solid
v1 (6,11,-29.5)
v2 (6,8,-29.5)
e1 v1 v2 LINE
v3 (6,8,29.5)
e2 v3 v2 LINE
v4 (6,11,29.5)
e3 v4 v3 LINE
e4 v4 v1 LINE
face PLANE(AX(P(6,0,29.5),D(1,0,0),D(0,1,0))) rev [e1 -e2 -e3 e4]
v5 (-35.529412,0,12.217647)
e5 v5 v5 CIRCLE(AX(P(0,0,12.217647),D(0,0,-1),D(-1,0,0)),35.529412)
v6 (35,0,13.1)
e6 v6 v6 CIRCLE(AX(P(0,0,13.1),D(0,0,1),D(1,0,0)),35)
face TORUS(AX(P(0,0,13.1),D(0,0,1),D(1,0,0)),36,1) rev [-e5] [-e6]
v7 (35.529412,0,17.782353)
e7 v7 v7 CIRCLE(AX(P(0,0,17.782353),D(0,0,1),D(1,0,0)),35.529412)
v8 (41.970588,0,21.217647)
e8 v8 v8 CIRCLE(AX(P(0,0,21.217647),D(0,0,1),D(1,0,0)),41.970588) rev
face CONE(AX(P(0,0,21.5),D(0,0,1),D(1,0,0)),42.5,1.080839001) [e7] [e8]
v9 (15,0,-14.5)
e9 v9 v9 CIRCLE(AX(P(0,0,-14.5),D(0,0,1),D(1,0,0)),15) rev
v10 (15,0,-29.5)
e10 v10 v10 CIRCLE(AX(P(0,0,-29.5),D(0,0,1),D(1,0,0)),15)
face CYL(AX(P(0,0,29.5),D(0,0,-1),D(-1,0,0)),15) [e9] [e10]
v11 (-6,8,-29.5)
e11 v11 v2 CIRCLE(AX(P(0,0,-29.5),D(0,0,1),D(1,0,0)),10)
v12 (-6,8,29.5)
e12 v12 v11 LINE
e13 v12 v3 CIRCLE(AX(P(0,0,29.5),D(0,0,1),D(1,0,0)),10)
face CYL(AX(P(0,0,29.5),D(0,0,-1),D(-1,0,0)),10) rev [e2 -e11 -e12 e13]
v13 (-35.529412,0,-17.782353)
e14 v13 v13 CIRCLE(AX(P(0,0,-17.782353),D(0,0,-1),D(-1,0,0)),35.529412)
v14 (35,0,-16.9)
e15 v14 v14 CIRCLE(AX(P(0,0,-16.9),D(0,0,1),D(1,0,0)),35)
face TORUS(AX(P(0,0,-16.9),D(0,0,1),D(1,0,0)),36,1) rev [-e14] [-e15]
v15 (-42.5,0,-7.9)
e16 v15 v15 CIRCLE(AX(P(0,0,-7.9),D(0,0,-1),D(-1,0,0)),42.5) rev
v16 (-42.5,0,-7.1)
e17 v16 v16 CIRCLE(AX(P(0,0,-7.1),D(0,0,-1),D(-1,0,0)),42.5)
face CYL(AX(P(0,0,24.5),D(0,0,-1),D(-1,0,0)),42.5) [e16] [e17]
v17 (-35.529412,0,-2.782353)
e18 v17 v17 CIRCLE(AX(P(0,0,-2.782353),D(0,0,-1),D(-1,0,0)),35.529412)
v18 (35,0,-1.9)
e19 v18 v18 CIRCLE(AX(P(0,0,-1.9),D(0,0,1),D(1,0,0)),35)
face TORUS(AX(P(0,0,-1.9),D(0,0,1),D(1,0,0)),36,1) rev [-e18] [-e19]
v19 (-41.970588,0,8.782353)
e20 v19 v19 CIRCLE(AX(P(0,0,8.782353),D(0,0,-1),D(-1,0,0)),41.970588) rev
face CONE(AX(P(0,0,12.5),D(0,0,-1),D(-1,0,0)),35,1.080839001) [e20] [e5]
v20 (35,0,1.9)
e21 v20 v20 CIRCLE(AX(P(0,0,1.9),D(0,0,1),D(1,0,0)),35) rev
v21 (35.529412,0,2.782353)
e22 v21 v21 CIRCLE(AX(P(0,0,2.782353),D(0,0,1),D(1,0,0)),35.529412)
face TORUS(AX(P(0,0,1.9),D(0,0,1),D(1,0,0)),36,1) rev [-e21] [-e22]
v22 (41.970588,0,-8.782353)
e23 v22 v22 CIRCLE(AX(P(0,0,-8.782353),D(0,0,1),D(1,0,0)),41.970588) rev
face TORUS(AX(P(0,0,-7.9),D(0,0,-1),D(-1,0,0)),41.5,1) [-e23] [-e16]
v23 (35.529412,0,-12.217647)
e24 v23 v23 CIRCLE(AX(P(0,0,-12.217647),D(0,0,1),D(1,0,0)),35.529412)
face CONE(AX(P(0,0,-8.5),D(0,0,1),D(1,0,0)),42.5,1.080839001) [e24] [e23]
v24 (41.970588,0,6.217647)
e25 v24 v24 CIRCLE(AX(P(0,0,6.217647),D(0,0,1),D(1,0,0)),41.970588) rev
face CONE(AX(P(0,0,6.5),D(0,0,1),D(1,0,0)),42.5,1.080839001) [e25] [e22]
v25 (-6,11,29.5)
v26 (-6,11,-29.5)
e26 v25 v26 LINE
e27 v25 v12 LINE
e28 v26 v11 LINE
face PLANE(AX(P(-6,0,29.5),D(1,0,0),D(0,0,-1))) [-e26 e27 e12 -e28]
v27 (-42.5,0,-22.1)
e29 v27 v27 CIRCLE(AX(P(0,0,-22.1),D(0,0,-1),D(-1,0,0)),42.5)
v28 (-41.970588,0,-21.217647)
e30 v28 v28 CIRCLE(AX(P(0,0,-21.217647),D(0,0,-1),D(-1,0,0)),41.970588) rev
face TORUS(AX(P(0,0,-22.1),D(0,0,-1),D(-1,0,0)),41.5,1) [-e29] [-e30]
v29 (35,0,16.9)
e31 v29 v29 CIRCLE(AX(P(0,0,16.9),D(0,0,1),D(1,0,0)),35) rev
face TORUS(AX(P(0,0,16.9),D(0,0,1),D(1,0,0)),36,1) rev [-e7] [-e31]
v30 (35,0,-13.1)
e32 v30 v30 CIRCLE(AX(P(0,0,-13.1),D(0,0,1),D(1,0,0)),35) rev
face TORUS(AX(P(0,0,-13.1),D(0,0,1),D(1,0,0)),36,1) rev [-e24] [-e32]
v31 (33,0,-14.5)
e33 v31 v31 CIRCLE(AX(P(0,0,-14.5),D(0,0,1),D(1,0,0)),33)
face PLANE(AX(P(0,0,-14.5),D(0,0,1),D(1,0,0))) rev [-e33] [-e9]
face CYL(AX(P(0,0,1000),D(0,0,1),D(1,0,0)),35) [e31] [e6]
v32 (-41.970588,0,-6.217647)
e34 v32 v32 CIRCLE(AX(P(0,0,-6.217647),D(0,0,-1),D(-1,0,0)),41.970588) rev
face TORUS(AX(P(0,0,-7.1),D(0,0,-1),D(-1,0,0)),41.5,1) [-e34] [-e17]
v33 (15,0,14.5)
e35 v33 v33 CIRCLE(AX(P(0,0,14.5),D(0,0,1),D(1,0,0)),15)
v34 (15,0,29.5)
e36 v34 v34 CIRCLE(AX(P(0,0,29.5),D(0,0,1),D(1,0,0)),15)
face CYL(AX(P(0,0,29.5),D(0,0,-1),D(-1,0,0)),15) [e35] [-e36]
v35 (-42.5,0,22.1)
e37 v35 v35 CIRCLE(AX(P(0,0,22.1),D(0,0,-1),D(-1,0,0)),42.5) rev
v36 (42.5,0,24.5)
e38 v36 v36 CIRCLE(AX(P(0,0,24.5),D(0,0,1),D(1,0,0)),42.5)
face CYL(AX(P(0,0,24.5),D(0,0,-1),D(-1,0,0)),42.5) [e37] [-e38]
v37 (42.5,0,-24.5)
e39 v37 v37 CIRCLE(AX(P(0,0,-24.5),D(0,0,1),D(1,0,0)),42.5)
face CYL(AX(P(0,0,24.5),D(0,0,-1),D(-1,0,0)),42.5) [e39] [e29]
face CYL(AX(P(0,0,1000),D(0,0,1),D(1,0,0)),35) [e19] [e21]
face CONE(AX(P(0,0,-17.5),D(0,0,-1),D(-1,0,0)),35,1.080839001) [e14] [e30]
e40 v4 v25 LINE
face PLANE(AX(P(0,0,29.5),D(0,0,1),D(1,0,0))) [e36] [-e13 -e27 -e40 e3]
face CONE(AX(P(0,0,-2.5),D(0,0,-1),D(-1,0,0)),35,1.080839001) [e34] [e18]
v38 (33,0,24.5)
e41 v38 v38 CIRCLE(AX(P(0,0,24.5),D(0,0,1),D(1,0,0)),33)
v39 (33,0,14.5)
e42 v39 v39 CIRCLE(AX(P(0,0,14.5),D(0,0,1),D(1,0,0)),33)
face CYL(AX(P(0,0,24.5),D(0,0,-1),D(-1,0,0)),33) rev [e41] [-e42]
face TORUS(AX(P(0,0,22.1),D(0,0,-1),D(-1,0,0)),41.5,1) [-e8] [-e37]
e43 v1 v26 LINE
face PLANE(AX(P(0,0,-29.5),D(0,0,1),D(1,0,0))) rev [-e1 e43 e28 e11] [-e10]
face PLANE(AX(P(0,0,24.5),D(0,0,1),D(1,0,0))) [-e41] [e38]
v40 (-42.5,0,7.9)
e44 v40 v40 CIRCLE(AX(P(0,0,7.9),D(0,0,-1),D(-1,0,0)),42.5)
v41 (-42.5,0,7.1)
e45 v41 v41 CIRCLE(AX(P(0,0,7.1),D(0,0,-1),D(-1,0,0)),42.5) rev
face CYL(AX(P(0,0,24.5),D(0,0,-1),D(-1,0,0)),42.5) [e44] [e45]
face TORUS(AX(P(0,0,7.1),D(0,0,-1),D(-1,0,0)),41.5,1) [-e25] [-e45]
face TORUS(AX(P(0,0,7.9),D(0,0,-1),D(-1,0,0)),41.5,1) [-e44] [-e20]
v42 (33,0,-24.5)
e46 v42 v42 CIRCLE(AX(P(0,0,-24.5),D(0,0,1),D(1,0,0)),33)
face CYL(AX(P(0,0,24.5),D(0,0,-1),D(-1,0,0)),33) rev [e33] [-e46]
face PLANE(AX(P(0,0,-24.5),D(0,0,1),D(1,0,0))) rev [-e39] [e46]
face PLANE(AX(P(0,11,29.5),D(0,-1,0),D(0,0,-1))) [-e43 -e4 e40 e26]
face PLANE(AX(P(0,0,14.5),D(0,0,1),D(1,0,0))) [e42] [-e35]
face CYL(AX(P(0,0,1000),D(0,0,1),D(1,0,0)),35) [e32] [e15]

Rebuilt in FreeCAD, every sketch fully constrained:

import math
import FreeCAD as App
import Part
import Sketcher
from FreeCAD import Vector
Q = App.Units.Quantity


def edges_at(feature, points):
    """Names of the edges that pass closest to the given points."""
    edges = feature.Shape.Edges
    near = lambda p: min(range(len(edges)), key=lambda i: edges[i].distToShape(Part.Vertex(*p))[0])
    return sorted({f"Edge{near(p) + 1}" for p in points})


def add_polygon(sketch, points):
    """Adds a closed chain of lines whose ends are joined by coincident constraints."""
    first, n = sketch.GeometryCount, len(points)
    for a, b in zip(points, points[1:] + points[:1]):
        sketch.addGeometry(Part.LineSegment(App.Vector(*a, 0), App.Vector(*b, 0)), False)
    for i in range(n):
        sketch.addConstraint(Sketcher.Constraint("Coincident", first + i, 2, first + (i + 1) % n, 1))

doc = App.newDocument("Part")
body = doc.addObject("PartDesign::Body", "Body")

sketch1 = body.newObject("Sketcher::SketchObject", "Sketch")
sketch1.AttachmentSupport = (doc.getObject("XY_Plane"), [""])
sketch1.MapMode = "FlatFace"
sketch1.addGeometry([
    Part.Circle(Vector(0, 0, 0), Vector(0, 0, 1), 42),
    Part.Circle(Vector(0, 0, 0), Vector(0, 0, 1), 33),
], False)
sketch1.addConstraint([
    Sketcher.Constraint("Coincident", 0, 3, -1, 1),
    Sketcher.Constraint("Coincident", 1, 3, -1, 1),
    Sketcher.Constraint("Diameter", 0, Q("85 mm")),
    Sketcher.Constraint("Diameter", 1, Q("66 mm")),
])
pad1 = body.newObject("PartDesign::Pad", "Pad")
pad1.Profile = sketch1
pad1.Length = 49
pad1.Midplane = True
body2 = doc.addObject("PartDesign::Body", "Body001")

sketch2 = body2.newObject("Sketcher::SketchObject", "Sketch001")
sketch2.AttachmentSupport = (doc.getObject("XY_Plane001"), [""])
sketch2.MapMode = "FlatFace"
sketch2.addGeometry([
    Part.Circle(Vector(0, 0, 0), Vector(0, 0, 1), 15),
    Part.LineSegment(Vector(-6, 11, 0), Vector(6, 11, 0)),
    Part.LineSegment(Vector(6, 11, 0), Vector(6, 8, 0)),
    Part.ArcOfCircle(Part.Circle(Vector(0, 0, 0), Vector(0, 0, 1), 10), math.radians(127), math.radians(413)),
    Part.LineSegment(Vector(-6, 8, 0), Vector(-6, 11, 0)),
], False)
sketch2.addConstraint([
    Sketcher.Constraint("Coincident", 1, 2, 2, 1),
    Sketcher.Constraint("Coincident", 2, 2, 3, 2),
    Sketcher.Constraint("Coincident", 3, 1, 4, 1),
    Sketcher.Constraint("Coincident", 4, 2, 1, 1),
    Sketcher.Constraint("Horizontal", 1),
    Sketcher.Constraint("Vertical", 2),
    Sketcher.Constraint("Vertical", 4),
    Sketcher.Constraint("Coincident", 0, 3, -1, 1),
    Sketcher.Constraint("Coincident", 3, 3, -1, 1),
    Sketcher.Constraint("Horizontal", 2, 2, 3, 1),
    Sketcher.Constraint("Diameter", 0, Q("30 mm")),
    Sketcher.Constraint("Radius", 3, Q("10 mm")),
    Sketcher.Constraint("DistanceX", 1, 1, 1, 2, Q("12 mm")),
    Sketcher.Constraint("DistanceY", 2, 2, 2, 1, Q("3 mm")),
])
pad2 = body2.newObject("PartDesign::Pad", "Pad001")
pad2.Profile = sketch2
pad2.Length = 59
pad2.Midplane = True
body.AllowCompound = True
doc.recompute()

boolean = body.newObject("PartDesign::Boolean", "Boolean")
boolean.Type = "Fuse"
boolean.addObjects([body2])

sketch3 = body.newObject("Sketcher::SketchObject", "Sketch002")
sketch3.AttachmentSupport = (doc.getObject("XY_Plane"), [""])
sketch3.MapMode = "FlatFace"
sketch3.addGeometry([
    Part.Circle(Vector(0, 0, 0), Vector(0, 0, 1), 33),
    Part.Circle(Vector(0, 0, 0), Vector(0, 0, 1), 15),
], False)
sketch3.addConstraint([
    Sketcher.Constraint("Coincident", 0, 3, -1, 1),
    Sketcher.Constraint("Coincident", 1, 3, -1, 1),
    Sketcher.Constraint("Diameter", 0, Q("66 mm")),
    Sketcher.Constraint("Diameter", 1, Q("30 mm")),
])
pad3 = body.newObject("PartDesign::Pad", "Pad002")
pad3.Profile = sketch3
pad3.Length = 29
pad3.Midplane = True

sketch4 = body.newObject("Sketcher::SketchObject", "Sketch003")
sketch4.AttachmentSupport = (doc.getObject("YZ_Plane"), [""])
sketch4.MapMode = "FlatFace"
add_polygon(sketch4, [(42, 8), (42, 22), (35, 18), (35, 12)])
add_polygon(sketch4, [(42, -6), (42, 6), (35, 2), (35, -2)])
add_polygon(sketch4, [(42, -22), (42, -8), (35, -12), (35, -18)])
sketch4.addConstraint([
    Sketcher.Constraint("Vertical", 0),
    Sketcher.Constraint("Vertical", 2),
    Sketcher.Constraint("Vertical", 4),
    Sketcher.Constraint("Vertical", 6),
    Sketcher.Constraint("Vertical", 8),
    Sketcher.Constraint("Vertical", 10),
    Sketcher.Constraint("Symmetric", 3, 2, 8, 2, -1),
    Sketcher.Constraint("Symmetric", 2, 2, 9, 2, -1),
    Sketcher.Constraint("Parallel", 1, 5),
    Sketcher.Constraint("Parallel", 3, 7),
    Sketcher.Constraint("Parallel", 5, 9),
    Sketcher.Constraint("Parallel", 7, 11),
    Sketcher.Constraint("Vertical", 3, 2, 4, 2),
    Sketcher.Constraint("Vertical", 2, 2, 5, 2),
    Sketcher.Constraint("Equal", 0, 4),
    Sketcher.Constraint("Equal", 4, 8),
    Sketcher.Constraint("DistanceY", 0, 1, 0, 2, Q("13 mm")),
    Sketcher.Constraint("DistanceY", 2, 2, 2, 1, Q("5 mm")),
    Sketcher.Constraint("DistanceX", -1, 1, 1, 2, Q("35 mm")),
    Sketcher.Constraint("DistanceY", 4, 2, 3, 2, Q("2 mm")),
    Sketcher.Constraint("DistanceY", 8, 2, 7, 2, Q("2 mm")),
    Sketcher.Constraint("Distance", 1, Q("8.5 mm")),
])
groove = body.newObject("PartDesign::Groove", "Groove")
groove.Profile = sketch4
groove.ReferenceAxis = (sketch4, ["V_Axis"])
groove.Angle = 360
doc.recompute()

fillet = body.newObject("PartDesign::Fillet", "Fillet")
fillet.Base = (groove, edges_at(groove, [
    (-30.052, -30.052, 8.5),
    (-30.052, -30.052, 21.5),
    (0, -35, 17.5),
    (0, -35, 12.5),
    (30.052, 30.052, -6.5),
    (30.052, 30.052, 6.5),
    (0, -35, 2.5),
    (0, -35, -2.5),
    (30.052, 30.052, -21.5),
    (30.052, 30.052, -8.5),
    (0, -35, -12.5),
    (0, -35, -17.5),
]))
fillet.Radius = 1

doc.recompute()
